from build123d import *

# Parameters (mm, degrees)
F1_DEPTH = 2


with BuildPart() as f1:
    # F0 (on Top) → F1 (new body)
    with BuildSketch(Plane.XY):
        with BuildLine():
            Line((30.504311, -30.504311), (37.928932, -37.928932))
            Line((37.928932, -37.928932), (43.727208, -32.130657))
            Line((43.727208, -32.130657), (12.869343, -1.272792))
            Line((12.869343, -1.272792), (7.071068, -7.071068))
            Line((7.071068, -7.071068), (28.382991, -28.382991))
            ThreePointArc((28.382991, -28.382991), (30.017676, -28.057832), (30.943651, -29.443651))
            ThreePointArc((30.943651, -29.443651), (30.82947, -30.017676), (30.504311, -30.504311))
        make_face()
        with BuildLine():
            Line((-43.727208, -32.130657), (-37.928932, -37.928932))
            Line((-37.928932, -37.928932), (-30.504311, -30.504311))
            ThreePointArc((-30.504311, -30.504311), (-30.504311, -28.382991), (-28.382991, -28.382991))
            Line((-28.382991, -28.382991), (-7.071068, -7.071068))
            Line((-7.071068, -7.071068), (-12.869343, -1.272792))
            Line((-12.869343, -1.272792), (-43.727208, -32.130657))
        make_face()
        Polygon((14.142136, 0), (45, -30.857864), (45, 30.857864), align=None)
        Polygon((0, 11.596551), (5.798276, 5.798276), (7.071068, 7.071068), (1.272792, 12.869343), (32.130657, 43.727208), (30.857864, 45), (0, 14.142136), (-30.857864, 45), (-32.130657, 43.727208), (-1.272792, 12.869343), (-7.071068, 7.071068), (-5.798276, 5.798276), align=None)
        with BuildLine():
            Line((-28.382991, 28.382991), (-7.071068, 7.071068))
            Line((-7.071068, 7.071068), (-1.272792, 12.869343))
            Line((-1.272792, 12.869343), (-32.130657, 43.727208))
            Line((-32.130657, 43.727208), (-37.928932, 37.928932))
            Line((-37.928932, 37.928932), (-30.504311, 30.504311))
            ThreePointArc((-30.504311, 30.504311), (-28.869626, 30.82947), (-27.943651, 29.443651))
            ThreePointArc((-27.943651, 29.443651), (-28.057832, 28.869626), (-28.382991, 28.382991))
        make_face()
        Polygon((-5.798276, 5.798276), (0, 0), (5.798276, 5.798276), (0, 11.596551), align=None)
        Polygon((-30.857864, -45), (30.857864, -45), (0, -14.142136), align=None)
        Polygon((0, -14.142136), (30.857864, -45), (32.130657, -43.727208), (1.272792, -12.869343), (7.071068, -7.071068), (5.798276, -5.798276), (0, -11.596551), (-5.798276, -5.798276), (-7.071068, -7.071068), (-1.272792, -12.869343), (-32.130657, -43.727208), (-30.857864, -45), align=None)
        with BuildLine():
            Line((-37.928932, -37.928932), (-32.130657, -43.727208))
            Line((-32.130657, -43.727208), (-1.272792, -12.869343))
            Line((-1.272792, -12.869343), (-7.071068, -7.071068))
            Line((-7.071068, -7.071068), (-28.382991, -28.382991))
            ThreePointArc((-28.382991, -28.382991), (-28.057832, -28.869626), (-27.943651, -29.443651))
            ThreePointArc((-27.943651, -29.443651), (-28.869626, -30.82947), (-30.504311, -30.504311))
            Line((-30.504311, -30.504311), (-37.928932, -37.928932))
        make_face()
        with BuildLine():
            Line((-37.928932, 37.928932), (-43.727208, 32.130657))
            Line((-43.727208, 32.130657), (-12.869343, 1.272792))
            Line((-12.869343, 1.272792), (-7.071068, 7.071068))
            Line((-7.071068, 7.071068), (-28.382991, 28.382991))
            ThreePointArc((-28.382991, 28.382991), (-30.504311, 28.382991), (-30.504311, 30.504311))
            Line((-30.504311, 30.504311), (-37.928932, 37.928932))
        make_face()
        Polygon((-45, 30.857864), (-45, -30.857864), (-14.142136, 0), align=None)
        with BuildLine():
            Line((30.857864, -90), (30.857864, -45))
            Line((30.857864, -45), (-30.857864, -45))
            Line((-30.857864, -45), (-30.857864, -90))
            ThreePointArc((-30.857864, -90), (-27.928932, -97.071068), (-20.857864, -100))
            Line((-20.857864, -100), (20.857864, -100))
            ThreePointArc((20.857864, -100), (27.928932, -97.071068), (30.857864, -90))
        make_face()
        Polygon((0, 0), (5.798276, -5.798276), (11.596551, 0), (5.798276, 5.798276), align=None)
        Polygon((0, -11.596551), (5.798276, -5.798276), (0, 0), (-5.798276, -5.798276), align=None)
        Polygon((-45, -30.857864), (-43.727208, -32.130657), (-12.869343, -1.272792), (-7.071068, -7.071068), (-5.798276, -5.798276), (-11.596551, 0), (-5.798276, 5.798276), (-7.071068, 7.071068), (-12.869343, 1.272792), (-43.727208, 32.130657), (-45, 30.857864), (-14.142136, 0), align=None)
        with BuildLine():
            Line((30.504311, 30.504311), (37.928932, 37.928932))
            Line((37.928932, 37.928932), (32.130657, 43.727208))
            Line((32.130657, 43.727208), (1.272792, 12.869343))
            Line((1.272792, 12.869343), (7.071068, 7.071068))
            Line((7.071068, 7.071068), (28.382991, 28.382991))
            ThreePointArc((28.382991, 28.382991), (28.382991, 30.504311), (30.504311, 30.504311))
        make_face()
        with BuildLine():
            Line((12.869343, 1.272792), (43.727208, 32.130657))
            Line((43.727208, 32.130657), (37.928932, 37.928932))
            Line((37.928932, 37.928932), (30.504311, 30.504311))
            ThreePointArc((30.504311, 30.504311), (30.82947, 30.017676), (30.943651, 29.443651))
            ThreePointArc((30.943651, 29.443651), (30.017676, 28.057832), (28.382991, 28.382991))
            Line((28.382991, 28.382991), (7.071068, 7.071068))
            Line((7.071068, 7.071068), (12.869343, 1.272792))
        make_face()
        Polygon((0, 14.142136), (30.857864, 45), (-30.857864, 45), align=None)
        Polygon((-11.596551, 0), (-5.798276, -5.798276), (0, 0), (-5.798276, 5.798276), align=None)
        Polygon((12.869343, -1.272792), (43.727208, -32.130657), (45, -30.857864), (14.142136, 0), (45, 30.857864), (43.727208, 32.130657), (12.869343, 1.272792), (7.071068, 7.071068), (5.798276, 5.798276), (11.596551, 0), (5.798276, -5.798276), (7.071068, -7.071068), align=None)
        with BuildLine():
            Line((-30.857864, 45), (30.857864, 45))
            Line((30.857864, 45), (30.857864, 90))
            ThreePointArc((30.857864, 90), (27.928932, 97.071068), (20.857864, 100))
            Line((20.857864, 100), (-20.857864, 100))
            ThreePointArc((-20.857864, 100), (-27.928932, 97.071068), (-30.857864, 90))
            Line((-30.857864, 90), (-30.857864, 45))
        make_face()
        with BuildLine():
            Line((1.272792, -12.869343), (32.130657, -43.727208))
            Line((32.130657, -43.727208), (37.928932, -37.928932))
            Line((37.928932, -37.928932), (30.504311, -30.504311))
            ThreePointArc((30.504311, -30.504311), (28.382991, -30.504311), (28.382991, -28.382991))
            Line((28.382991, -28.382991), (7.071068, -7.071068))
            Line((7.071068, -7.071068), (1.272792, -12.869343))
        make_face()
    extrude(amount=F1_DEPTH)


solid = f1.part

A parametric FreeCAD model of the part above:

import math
import FreeCAD as App
import Part
import Sketcher

V = App.Vector
Q = App.Units.Quantity

doc = App.newDocument("Part")
body = doc.addObject("PartDesign::Body", "Body")

# Sketch on XY plane
sketch1 = doc.addObject("Sketcher::SketchObject", "Sketch")
body.addObject(sketch1)
sketch1.AttachmentSupport = (doc.XY_Plane, [""])
sketch1.MapMode = "FlatFace"
sketch1.addGeometry(Part.LineSegment(V(37.9, -37.9, 0), V(43.7, -32.1, 0)), False)
sketch1.addGeometry(Part.LineSegment(V(43.7, -32.1, 0), V(45, -30.9, 0)), False)
sketch1.addGeometry(Part.LineSegment(V(45, -30.9, 0), V(45, 30.9, 0)), False)
sketch1.addGeometry(Part.LineSegment(V(45, 30.9, 0), V(43.7, 32.1, 0)), False)
sketch1.addGeometry(Part.LineSegment(V(43.7, 32.1, 0), V(37.9, 37.9, 0)), False)
sketch1.addGeometry(Part.LineSegment(V(37.9, 37.9, 0), V(32.1, 43.7, 0)), False)
sketch1.addGeometry(Part.LineSegment(V(32.1, 43.7, 0), V(30.9, 45, 0)), False)
sketch1.addGeometry(Part.LineSegment(V(30.9, 45, 0), V(30.9, 90, 0)), False)
sketch1.addGeometry(Part.ArcOfCircle(Part.Circle(V(20.9, 90, 0), V(0, 0, 1), 10), math.radians(0), math.radians(90)), False)
sketch1.addGeometry(Part.LineSegment(V(20.9, 100, 0), V(-20.9, 100, 0)), False)
sketch1.addGeometry(Part.ArcOfCircle(Part.Circle(V(-20.9, 90, 0), V(0, 0, 1), 10), math.radians(90), math.radians(180)), False)
sketch1.addGeometry(Part.LineSegment(V(-30.9, 90, 0), V(-30.9, 45, 0)), False)
sketch1.addGeometry(Part.LineSegment(V(-30.9, 45, 0), V(-32.1, 43.7, 0)), False)
sketch1.addGeometry(Part.LineSegment(V(-32.1, 43.7, 0), V(-37.9, 37.9, 0)), False)
sketch1.addGeometry(Part.LineSegment(V(-37.9, 37.9, 0), V(-43.7, 32.1, 0)), False)
sketch1.addGeometry(Part.LineSegment(V(-43.7, 32.1, 0), V(-45, 30.9, 0)), False)
sketch1.addGeometry(Part.LineSegment(V(-45, 30.9, 0), V(-45, -30.9, 0)), False)
sketch1.addGeometry(Part.LineSegment(V(-45, -30.9, 0), V(-43.7, -32.1, 0)), False)
sketch1.addGeometry(Part.LineSegment(V(-43.7, -32.1, 0), V(-37.9, -37.9, 0)), False)
sketch1.addGeometry(Part.LineSegment(V(-37.9, -37.9, 0), V(-32.1, -43.7, 0)), False)
sketch1.addGeometry(Part.LineSegment(V(-32.1, -43.7, 0), V(-30.9, -45, 0)), False)
sketch1.addGeometry(Part.LineSegment(V(-30.9, -45, 0), V(-30.9, -90, 0)), False)
sketch1.addGeometry(Part.ArcOfCircle(Part.Circle(V(-20.9, -90, 0), V(0, 0, 1), 10), math.radians(180), math.radians(270)), False)
sketch1.addGeometry(Part.LineSegment(V(-20.9, -100, 0), V(20.9, -100, 0)), False)
sketch1.addGeometry(Part.ArcOfCircle(Part.Circle(V(20.9, -90, 0), V(0, 0, 1), 10), math.radians(-90), math.radians(0)), False)
sketch1.addGeometry(Part.LineSegment(V(30.9, -90, 0), V(30.9, -45, 0)), False)
sketch1.addGeometry(Part.LineSegment(V(30.9, -45, 0), V(32.1, -43.7, 0)), False)
sketch1.addGeometry(Part.LineSegment(V(32.1, -43.7, 0), V(37.9, -37.9, 0)), False)
sketch1.addGeometry(Part.ArcOfCircle(Part.Circle(V(29.4, -29.4, 0), V(0, 0, 1), 1.5), math.radians(0), math.radians(135)), False)
sketch1.addGeometry(Part.ArcOfCircle(Part.Circle(V(29.4, -29.4, 0), V(0, 0, 1), 1.5), math.radians(-45), math.radians(0)), False)
sketch1.addGeometry(Part.ArcOfCircle(Part.Circle(V(29.4, -29.4, 0), V(0, 0, 1), 1.5), math.radians(135), math.radians(315)), False)
sketch1.addGeometry(Part.ArcOfCircle(Part.Circle(V(-29.4, 29.4, 0), V(0, 0, 1), 1.5), math.radians(-45), math.radians(0)), False)
sketch1.addGeometry(Part.ArcOfCircle(Part.Circle(V(-29.4, 29.4, 0), V(0, 0, 1), 1.5), math.radians(135), math.radians(315)), False)
sketch1.addGeometry(Part.ArcOfCircle(Part.Circle(V(-29.4, 29.4, 0), V(0, 0, 1), 1.5), math.radians(0), math.radians(135)), False)
sketch1.addGeometry(Part.ArcOfCircle(Part.Circle(V(-29.4, -29.4, 0), V(0, 0, 1), 1.5), math.radians(45), math.radians(225)), False)
sketch1.addGeometry(Part.ArcOfCircle(Part.Circle(V(-29.4, -29.4, 0), V(0, 0, 1), 1.5), math.radians(0), math.radians(45)), False)
sketch1.addGeometry(Part.ArcOfCircle(Part.Circle(V(-29.4, -29.4, 0), V(0, 0, 1), 1.5), math.radians(-135), math.radians(0)), False)
sketch1.addGeometry(Part.ArcOfCircle(Part.Circle(V(29.4, 29.4, 0), V(0, 0, 1), 1.5), math.radians(45), math.radians(225)), False)
sketch1.addGeometry(Part.ArcOfCircle(Part.Circle(V(29.4, 29.4, 0), V(0, 0, 1), 1.5), math.radians(0), math.radians(45)), False)
sketch1.addGeometry(Part.ArcOfCircle(Part.Circle(V(29.4, 29.4, 0), V(0, 0, 1), 1.5), math.radians(-135), math.radians(0)), False)
sketch1.addConstraint(Sketcher.Constraint("Coincident", 0, 2, 1, 1))
sketch1.addConstraint(Sketcher.Constraint("Coincident", 1, 2, 2, 1))
sketch1.addConstraint(Sketcher.Constraint("Coincident", 2, 2, 3, 1))
sketch1.addConstraint(Sketcher.Constraint("Coincident", 3, 2, 4, 1))
sketch1.addConstraint(Sketcher.Constraint("Coincident", 4, 2, 5, 1))
sketch1.addConstraint(Sketcher.Constraint("Coincident", 5, 2, 6, 1))
sketch1.addConstraint(Sketcher.Constraint("Coincident", 6, 2, 7, 1))
sketch1.addConstraint(Sketcher.Constraint("Tangent", 7, 2, 8, 1))
sketch1.addConstraint(Sketcher.Constraint("Tangent", 8, 2, 9, 1))
sketch1.addConstraint(Sketcher.Constraint("Tangent", 9, 2, 10, 1))
sketch1.addConstraint(Sketcher.Constraint("Tangent", 10, 2, 11, 1))
sketch1.addConstraint(Sketcher.Constraint("Coincident", 11, 2, 12, 1))
sketch1.addConstraint(Sketcher.Constraint("Coincident", 12, 2, 13, 1))
sketch1.addConstraint(Sketcher.Constraint("Coincident", 13, 2, 14, 1))
sketch1.addConstraint(Sketcher.Constraint("Coincident", 14, 2, 15, 1))
sketch1.addConstraint(Sketcher.Constraint("Coincident", 15, 2, 16, 1))
sketch1.addConstraint(Sketcher.Constraint("Coincident", 16, 2, 17, 1))
sketch1.addConstraint(Sketcher.Constraint("Coincident", 17, 2, 18, 1))
sketch1.addConstraint(Sketcher.Constraint("Coincident", 18, 2, 19, 1))
sketch1.addConstraint(Sketcher.Constraint("Coincident", 19, 2, 20, 1))
sketch1.addConstraint(Sketcher.Constraint("Coincident", 20, 2, 21, 1))
sketch1.addConstraint(Sketcher.Constraint("Tangent", 21, 2, 22, 1))
sketch1.addConstraint(Sketcher.Constraint("Tangent", 22, 2, 23, 1))
sketch1.addConstraint(Sketcher.Constraint("Tangent", 23, 2, 24, 1))
sketch1.addConstraint(Sketcher.Constraint("Tangent", 24, 2, 25, 1))
sketch1.addConstraint(Sketcher.Constraint("Coincident", 25, 2, 26, 1))
sketch1.addConstraint(Sketcher.Constraint("Coincident", 26, 2, 27, 1))
sketch1.addConstraint(Sketcher.Constraint("Coincident", 27, 2, 0, 1))
sketch1.addConstraint(Sketcher.Constraint("Tangent", 28, 1, 29, 2))
sketch1.addConstraint(Sketcher.Constraint("Tangent", 29, 1, 30, 2))
sketch1.addConstraint(Sketcher.Constraint("Tangent", 30, 1, 28, 2))
sketch1.addConstraint(Sketcher.Constraint("Tangent", 31, 1, 32, 2))
sketch1.addConstraint(Sketcher.Constraint("Tangent", 32, 1, 33, 2))
sketch1.addConstraint(Sketcher.Constraint("Tangent", 33, 1, 31, 2))
sketch1.addConstraint(Sketcher.Constraint("Tangent", 34, 1, 35, 2))
sketch1.addConstraint(Sketcher.Constraint("Tangent", 35, 1, 36, 2))
sketch1.addConstraint(Sketcher.Constraint("Tangent", 36, 1, 34, 2))
sketch1.addConstraint(Sketcher.Constraint("Tangent", 37, 1, 38, 2))
sketch1.addConstraint(Sketcher.Constraint("Tangent", 38, 1, 39, 2))
sketch1.addConstraint(Sketcher.Constraint("Tangent", 39, 1, 37, 2))
sketch1.addConstraint(Sketcher.Constraint("Vertical", 2))
sketch1.addConstraint(Sketcher.Constraint("Vertical", 7))
sketch1.addConstraint(Sketcher.Constraint("Horizontal", 9))
sketch1.addConstraint(Sketcher.Constraint("Vertical", 11))
sketch1.addConstraint(Sketcher.Constraint("Vertical", 16))
sketch1.addConstraint(Sketcher.Constraint("Vertical", 21))
sketch1.addConstraint(Sketcher.Constraint("Horizontal", 23))
sketch1.addConstraint(Sketcher.Constraint("Vertical", 25))
sketch1.addConstraint(Sketcher.Constraint("Equal", 8, 10))
sketch1.addConstraint(Sketcher.Constraint("Equal", 10, 22))
sketch1.addConstraint(Sketcher.Constraint("Equal", 22, 24))
sketch1.addConstraint(Sketcher.Constraint("Equal", 29, 31))
sketch1.addConstraint(Sketcher.Constraint("Equal", 33, 34))
sketch1.addConstraint(Sketcher.Constraint("Equal", 36, 37))
sketch1.addConstraint(Sketcher.Constraint("Symmetric", 8, 3, 22, 3, -1, 1))
sketch1.addConstraint(Sketcher.Constraint("Symmetric", 28, 3, 31, 3, -1, 1))
sketch1.addConstraint(Sketcher.Constraint("Symmetric", 34, 3, 37, 3, -1, 1))
sketch1.addConstraint(Sketcher.Constraint("Symmetric", 0, 2, 14, 2, -1, 1))
sketch1.addConstraint(Sketcher.Constraint("Symmetric", 1, 2, 15, 2, -1, 1))
sketch1.addConstraint(Sketcher.Constraint("Symmetric", 3, 2, 17, 2, -1, 1))
sketch1.addConstraint(Sketcher.Constraint("Symmetric", 4, 2, 18, 2, -1, 1))
sketch1.addConstraint(Sketcher.Constraint("Symmetric", 5, 2, 19, 2, -1, 1))
sketch1.addConstraint(Sketcher.Constraint("Symmetric", 11, 2, 25, 2, -1, 1))
sketch1.addConstraint(Sketcher.Constraint("Symmetric", 12, 2, 26, 2, -1, 1))
sketch1.addConstraint(Sketcher.Constraint("Symmetric", 13, 2, 27, 2, -1, 1))
sketch1.addConstraint(Sketcher.Constraint("Symmetric", 28, 3, 34, 3, -2))
sketch1.addConstraint(Sketcher.Constraint("Symmetric", 6, 2, 11, 2, -2))
sketch1.addConstraint(Sketcher.Constraint("Symmetric", 5, 2, 12, 2, -2))
sketch1.addConstraint(Sketcher.Constraint("Symmetric", 4, 2, 13, 2, -2))
sketch1.addConstraint(Sketcher.Constraint("Symmetric", 3, 2, 14, 2, -2))
sketch1.addConstraint(Sketcher.Constraint("Parallel", 0, 1))
sketch1.addConstraint(Sketcher.Constraint("Perpendicular", 1, 3))
sketch1.addConstraint(Sketcher.Constraint("Parallel", 3, 4))
sketch1.addConstraint(Sketcher.Constraint("Parallel", 4, 5))
sketch1.addConstraint(Sketcher.Constraint("Parallel", 5, 6))
sketch1.addConstraint(Sketcher.Constraint("Perpendicular", 15, 17))
sketch1.addConstraint(Sketcher.Constraint("Parallel", 19, 20))
sketch1.addConstraint(Sketcher.Constraint("Horizontal", 36, 3, 28, 1))
sketch1.addConstraint(Sketcher.Constraint("Horizontal", 39, 3, 33, 1))
sketch1.addConstraint(Sketcher.Constraint("Horizontal", 30, 1, 34, 1))
sketch1.addConstraint(Sketcher.Constraint("Horizontal", 28, 1, 35, 1))
sketch1.addConstraint(Sketcher.Constraint("Horizontal", 29, 1, 36, 1))
sketch1.addConstraint(Sketcher.Constraint("Horizontal", 32, 1, 37, 1))
sketch1.addConstraint(Sketcher.Constraint("Horizontal", 33, 1, 38, 1))
sketch1.addConstraint(Sketcher.Constraint("Horizontal", 31, 1, 39, 1))
sketch1.addConstraint(Sketcher.Constraint("Vertical", 31, 1, 34, 1))
sketch1.addConstraint(Sketcher.Constraint("Vertical", 32, 1, 36, 1))
sketch1.addConstraint(Sketcher.Constraint("Equal", 4, 5))
sketch1.addConstraint(Sketcher.Constraint("Equal", 3, 6))
sketch1.addConstraint(Sketcher.Constraint("Radius", 8, Q("9.999999 mm")))
sketch1.addConstraint(Sketcher.Constraint("Radius", 28, Q("1.5 mm")))
sketch1.addConstraint(Sketcher.Constraint("DistanceY", 7, 1, 7, 2, Q("45 mm")))
sketch1.addConstraint(Sketcher.Constraint("DistanceY", -1, 1, 8, 3, Q("90.000001 mm")))
sketch1.addConstraint(Sketcher.Constraint("DistanceX", -1, 1, 1, 2, Q("45 mm")))
sketch1.addConstraint(Sketcher.Constraint("Distance", 0, Q("8.2 mm")))
sketch1.addConstraint(Sketcher.Constraint("Distance", 1, Q("1.8 mm")))
sketch1.addConstraint(Sketcher.Constraint("DistanceX", 31, 3, 29, 3, Q("58.887302 mm")))
sketch1.addConstraint(Sketcher.Constraint("DistanceY", 29, 3, 32, 3, Q("58.887301 mm")))
sketch1.addConstraint(Sketcher.Constraint("DistanceX", -1, 1, 29, 1, Q("30.504311 mm")))
sketch1.addConstraint(Sketcher.Constraint("DistanceX", -1, 1, 30, 1, Q("28.382991 mm")))
pad1 = doc.addObject("PartDesign::Pad", "Pad")
body.addObject(pad1)
pad1.Profile = sketch1
pad1.Length = 2

doc.recompute()
